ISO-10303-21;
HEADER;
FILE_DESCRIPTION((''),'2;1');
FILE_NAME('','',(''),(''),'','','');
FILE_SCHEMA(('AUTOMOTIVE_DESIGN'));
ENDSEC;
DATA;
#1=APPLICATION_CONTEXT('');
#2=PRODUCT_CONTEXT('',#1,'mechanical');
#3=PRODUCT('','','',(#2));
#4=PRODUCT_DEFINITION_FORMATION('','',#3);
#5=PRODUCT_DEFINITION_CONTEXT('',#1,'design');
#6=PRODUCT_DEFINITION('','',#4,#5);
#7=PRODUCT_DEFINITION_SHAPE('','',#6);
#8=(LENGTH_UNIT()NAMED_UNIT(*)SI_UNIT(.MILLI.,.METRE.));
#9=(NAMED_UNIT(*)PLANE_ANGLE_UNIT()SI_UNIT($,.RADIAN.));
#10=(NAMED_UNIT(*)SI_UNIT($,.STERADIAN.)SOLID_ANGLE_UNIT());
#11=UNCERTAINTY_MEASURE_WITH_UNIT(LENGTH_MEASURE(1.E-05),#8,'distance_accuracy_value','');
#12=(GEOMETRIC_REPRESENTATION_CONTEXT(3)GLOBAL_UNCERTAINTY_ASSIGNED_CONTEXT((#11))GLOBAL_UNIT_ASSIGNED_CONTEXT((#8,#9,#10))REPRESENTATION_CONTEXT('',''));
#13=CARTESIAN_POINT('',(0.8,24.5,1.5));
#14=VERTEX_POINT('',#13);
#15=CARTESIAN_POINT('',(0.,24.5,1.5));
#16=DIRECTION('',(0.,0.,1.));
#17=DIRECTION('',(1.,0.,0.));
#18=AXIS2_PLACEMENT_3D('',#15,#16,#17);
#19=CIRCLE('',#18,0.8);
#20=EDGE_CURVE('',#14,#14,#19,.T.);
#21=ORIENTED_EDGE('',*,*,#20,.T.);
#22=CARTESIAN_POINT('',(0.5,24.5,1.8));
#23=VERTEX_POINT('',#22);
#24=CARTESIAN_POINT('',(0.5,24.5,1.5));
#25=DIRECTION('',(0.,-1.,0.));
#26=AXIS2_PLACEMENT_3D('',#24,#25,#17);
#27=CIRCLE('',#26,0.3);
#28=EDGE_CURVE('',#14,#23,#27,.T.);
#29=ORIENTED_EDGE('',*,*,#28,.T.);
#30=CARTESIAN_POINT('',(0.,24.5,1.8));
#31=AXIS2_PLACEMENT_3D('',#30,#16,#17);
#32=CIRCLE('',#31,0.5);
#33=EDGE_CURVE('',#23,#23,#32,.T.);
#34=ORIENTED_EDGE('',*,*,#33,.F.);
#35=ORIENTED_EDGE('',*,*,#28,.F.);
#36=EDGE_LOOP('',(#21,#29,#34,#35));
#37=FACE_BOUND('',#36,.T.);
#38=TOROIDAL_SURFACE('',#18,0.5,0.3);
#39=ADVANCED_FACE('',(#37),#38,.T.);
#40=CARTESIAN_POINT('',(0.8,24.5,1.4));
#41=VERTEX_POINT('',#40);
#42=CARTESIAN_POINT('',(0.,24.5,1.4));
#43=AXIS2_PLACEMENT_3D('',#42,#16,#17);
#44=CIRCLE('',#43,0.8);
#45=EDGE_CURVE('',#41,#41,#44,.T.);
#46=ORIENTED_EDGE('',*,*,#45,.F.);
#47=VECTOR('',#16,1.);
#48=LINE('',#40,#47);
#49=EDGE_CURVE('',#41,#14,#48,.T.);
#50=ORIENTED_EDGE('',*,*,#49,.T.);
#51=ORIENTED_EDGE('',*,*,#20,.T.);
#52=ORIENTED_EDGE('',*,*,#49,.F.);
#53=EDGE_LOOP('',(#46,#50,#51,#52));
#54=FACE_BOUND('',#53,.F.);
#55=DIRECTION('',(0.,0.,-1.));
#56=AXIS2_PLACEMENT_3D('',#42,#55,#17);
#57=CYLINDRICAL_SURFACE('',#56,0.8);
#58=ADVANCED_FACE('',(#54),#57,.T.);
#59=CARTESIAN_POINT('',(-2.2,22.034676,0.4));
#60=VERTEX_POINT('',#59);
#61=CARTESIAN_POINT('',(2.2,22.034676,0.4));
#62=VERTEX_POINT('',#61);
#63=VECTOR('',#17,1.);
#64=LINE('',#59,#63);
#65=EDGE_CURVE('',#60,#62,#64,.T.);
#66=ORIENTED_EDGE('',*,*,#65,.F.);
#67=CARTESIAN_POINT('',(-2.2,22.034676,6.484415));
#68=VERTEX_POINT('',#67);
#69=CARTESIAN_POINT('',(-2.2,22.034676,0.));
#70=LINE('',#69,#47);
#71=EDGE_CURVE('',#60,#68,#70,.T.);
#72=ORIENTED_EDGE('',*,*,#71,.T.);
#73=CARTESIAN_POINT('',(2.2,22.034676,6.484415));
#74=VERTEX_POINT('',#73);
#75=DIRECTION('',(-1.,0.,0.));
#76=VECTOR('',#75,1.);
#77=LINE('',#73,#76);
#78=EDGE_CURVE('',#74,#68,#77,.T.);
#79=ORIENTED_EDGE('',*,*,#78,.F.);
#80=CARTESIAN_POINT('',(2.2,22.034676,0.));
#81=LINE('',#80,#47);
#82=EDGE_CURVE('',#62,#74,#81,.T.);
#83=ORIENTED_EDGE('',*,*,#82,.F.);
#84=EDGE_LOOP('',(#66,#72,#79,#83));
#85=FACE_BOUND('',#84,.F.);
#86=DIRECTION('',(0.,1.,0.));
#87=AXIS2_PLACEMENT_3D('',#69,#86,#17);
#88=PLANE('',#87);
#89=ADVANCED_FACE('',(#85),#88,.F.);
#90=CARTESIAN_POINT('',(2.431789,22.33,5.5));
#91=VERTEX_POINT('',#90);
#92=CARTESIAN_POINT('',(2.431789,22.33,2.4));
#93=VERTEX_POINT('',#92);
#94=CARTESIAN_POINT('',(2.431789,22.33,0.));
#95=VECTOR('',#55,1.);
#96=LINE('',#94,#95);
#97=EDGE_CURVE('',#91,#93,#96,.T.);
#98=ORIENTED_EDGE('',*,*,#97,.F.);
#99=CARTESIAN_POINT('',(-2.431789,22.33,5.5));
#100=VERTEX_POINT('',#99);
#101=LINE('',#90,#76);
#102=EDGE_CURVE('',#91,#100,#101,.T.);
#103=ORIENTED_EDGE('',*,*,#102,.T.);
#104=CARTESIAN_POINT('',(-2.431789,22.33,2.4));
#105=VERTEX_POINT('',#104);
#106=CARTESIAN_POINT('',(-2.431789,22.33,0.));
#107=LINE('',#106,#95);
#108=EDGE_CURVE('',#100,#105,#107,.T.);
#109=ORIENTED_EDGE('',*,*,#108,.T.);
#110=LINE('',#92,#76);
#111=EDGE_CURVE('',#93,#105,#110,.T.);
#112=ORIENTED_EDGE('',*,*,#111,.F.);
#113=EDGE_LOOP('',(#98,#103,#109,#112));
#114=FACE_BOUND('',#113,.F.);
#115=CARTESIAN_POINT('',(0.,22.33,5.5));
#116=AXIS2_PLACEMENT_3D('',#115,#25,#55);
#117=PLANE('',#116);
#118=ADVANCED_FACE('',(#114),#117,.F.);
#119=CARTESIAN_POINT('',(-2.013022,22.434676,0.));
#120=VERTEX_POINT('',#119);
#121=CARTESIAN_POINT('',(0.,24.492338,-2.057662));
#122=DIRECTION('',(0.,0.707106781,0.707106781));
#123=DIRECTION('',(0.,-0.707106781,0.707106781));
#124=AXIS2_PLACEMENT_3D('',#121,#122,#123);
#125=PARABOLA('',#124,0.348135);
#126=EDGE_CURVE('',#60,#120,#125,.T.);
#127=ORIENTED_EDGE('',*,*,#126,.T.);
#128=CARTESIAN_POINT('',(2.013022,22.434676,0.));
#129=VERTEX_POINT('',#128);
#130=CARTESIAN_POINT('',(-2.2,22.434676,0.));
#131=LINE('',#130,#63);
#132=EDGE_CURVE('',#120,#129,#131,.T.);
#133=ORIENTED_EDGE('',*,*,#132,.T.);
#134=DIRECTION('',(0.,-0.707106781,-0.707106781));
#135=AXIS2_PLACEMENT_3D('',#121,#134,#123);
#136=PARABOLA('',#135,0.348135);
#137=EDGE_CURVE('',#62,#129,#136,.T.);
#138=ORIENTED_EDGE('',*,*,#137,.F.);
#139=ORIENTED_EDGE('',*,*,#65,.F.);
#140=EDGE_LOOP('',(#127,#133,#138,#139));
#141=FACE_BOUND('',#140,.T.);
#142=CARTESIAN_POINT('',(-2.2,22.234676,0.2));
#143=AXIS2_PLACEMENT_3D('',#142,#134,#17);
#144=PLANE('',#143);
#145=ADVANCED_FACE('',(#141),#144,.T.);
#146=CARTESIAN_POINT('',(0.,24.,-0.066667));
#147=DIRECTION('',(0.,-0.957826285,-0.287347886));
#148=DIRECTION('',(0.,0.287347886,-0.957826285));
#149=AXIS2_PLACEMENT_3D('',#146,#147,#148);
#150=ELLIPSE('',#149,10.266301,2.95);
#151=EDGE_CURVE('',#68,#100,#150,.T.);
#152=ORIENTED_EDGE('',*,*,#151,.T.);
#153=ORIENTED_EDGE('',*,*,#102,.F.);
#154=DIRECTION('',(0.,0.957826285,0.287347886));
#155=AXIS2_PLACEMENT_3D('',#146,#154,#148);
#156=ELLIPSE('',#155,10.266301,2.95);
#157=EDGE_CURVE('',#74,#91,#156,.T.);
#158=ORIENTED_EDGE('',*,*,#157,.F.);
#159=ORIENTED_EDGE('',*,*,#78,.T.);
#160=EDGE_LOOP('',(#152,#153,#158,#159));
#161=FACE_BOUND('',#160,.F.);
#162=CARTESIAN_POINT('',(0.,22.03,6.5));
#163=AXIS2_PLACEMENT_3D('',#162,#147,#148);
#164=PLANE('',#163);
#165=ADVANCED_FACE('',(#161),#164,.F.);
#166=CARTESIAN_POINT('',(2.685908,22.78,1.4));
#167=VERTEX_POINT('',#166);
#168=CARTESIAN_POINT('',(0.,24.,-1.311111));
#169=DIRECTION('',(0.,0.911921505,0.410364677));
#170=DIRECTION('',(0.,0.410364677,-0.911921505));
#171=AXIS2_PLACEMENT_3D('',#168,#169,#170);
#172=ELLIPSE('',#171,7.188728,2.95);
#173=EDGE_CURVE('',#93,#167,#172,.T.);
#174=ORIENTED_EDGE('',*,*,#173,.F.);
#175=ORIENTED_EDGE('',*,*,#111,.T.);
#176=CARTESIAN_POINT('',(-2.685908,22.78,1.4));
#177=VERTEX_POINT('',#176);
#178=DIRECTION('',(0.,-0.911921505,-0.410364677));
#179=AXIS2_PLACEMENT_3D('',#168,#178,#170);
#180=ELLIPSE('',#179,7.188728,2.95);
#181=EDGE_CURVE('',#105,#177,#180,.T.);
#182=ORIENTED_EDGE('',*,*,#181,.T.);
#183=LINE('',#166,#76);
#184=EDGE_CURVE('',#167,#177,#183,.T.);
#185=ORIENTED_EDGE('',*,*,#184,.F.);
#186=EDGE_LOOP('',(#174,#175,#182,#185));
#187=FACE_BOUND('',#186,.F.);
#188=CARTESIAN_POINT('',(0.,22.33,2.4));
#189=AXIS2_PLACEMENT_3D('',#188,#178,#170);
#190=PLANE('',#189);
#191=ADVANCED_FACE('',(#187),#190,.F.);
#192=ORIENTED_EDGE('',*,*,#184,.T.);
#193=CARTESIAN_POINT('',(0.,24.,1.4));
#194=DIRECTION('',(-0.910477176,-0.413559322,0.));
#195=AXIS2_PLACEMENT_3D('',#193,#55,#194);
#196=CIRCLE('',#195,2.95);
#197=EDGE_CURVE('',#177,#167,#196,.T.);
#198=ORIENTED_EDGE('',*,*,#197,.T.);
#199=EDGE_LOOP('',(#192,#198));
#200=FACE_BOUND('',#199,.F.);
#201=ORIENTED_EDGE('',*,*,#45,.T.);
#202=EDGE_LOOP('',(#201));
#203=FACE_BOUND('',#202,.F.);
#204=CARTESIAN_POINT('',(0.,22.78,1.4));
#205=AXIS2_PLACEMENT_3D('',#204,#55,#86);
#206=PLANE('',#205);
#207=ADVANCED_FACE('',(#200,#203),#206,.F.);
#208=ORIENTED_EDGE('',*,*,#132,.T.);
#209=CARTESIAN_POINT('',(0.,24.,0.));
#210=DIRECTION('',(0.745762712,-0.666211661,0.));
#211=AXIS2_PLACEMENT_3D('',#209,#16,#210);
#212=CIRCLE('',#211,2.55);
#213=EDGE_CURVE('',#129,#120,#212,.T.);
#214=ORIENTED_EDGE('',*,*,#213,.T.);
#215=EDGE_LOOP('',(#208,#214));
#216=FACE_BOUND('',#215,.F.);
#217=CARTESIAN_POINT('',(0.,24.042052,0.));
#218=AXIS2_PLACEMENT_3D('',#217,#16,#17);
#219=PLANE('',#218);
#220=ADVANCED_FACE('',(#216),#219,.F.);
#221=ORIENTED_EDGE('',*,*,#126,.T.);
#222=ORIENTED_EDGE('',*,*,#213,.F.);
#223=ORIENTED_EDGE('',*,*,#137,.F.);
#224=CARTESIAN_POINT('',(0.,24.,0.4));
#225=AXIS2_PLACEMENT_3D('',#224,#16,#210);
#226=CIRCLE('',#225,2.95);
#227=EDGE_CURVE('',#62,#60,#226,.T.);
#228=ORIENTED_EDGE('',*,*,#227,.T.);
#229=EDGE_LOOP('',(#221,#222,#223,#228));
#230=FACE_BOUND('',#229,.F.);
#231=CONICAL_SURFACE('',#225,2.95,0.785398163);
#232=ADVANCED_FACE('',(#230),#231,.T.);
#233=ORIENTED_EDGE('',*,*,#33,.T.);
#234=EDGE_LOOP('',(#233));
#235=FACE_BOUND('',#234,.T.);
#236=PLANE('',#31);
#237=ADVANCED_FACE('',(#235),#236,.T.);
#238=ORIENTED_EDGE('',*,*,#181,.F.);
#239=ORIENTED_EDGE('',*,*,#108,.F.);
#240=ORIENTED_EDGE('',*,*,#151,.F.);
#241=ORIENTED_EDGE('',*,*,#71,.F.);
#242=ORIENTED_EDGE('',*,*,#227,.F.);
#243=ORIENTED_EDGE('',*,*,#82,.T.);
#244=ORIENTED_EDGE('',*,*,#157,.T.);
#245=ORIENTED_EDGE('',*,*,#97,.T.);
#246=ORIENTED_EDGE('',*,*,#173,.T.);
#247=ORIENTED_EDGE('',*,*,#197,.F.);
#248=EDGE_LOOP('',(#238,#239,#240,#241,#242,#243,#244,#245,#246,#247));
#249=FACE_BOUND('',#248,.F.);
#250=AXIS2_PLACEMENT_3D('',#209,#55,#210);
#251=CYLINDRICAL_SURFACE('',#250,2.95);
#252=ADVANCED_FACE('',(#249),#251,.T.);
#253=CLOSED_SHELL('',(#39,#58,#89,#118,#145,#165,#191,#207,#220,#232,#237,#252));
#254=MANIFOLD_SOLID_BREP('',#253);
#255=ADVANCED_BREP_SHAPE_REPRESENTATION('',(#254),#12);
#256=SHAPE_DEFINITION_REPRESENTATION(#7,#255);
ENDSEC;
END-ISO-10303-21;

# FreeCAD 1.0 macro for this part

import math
import FreeCAD as App
import Part
import Sketcher


def edges_at(feature, points):
    """Names of the edges that pass closest to the given points."""
    edges = feature.Shape.Edges
    near = lambda p: min(range(len(edges)), key=lambda i: edges[i].distToShape(Part.Vertex(*p))[0])
    return sorted({f"Edge{near(p) + 1}" for p in points})

doc = App.newDocument("Part")
params = doc.addObject("Spreadsheet::Sheet", "Params")
for row, (alias, value) in enumerate([
    ("sketch1_radius", "2.95 mm"),
    ("sketch1_width", "4.4 mm"),
    ("pad1_length", "6.5 mm"),
    ("sketch2_height", "3.1 mm"),
    ("sketch2_height2", "5.1 mm"),
    ("sketch2_width", "5.22 mm"),
    ("sketch2_width2", "5.97 mm"),
    ("sketch3_diameter", "1.6 mm"),
    ("pad2_length", "0.4 mm"),
    ("fillet_radius", "0.3 mm"),
    ("chamfer_size", "0.4 mm"),
], start=1):
    params.set(f"A{row}", alias)
    params.set(f"B{row}", "=" + value)
    params.setAlias(f"B{row}", alias)

body = doc.addObject("PartDesign::Body", "Body")

# Sketch on XY plane
sketch1 = body.newObject("Sketcher::SketchObject", "Sketch")
sketch1.AttachmentSupport = (doc.getObject("XY_Plane"), [""])
sketch1.MapMode = "FlatFace"
sketch1.addGeometry([
    Part.ArcOfCircle(Part.Circle(App.Vector(0, 0, 0), App.Vector(0, 0, 1), 3), math.radians(-42), math.radians(222)),
    Part.LineSegment(App.Vector(-2.2, -2, 0), App.Vector(2.2, -2, 0)),
], False)
sketch1.addConstraint([
    Sketcher.Constraint("Coincident", 0, 1, 1, 2),
    Sketcher.Constraint("Coincident", 1, 1, 0, 2),
    Sketcher.Constraint("Horizontal", 1),
    Sketcher.Constraint("Coincident", 0, 3, -1, 1),
    Sketcher.Constraint("Radius", 0, 2.95),
    Sketcher.Constraint("DistanceX", 1, 1, 1, 2, 4.4),
])
sketch1.setExpression("Constraints[4]", "Params.sketch1_radius")
sketch1.setExpression("Constraints[5]", "Params.sketch1_width")
pad1 = body.newObject("PartDesign::Pad", "Pad")
pad1.Profile = sketch1
pad1.setExpression("Length", "Params.pad1_length")

# Sketch on YZ plane
sketch2 = body.newObject("Sketcher::SketchObject", "Sketch001")
sketch2.AttachmentSupport = (doc.getObject("YZ_Plane"), [""])
sketch2.MapMode = "FlatFace"
sketch2.addGeometry([
    Part.LineSegment(App.Vector(-2, 6.5, 0), App.Vector(-1.7, 5.5, 0)),  # 0
    Part.LineSegment(App.Vector(-1.7, 5.5, 0), App.Vector(-1.7, 2.4, 0)),  # 1
    Part.LineSegment(App.Vector(-1.7, 2.4, 0), App.Vector(-1.2, 1.4, 0)),  # 2
    Part.LineSegment(App.Vector(-1.2, 1.4, 0), App.Vector(4, 1.4, 0)),  # 3
    Part.LineSegment(App.Vector(4, 1.4, 0), App.Vector(4, 6.5, 0)),  # 4
    Part.LineSegment(App.Vector(4, 6.5, 0), App.Vector(-2, 6.5, 0)),  # 5
], False)
sketch2.addConstraint([
    Sketcher.Constraint("Coincident", 0, 2, 1, 1),
    Sketcher.Constraint("Coincident", 1, 2, 2, 1),
    Sketcher.Constraint("Coincident", 2, 2, 3, 1),
    Sketcher.Constraint("Coincident", 3, 2, 4, 1),
    Sketcher.Constraint("Coincident", 4, 2, 5, 1),
    Sketcher.Constraint("Coincident", 5, 2, 0, 1),
    Sketcher.Constraint("Vertical", 1),
    Sketcher.Constraint("Horizontal", 3),
    Sketcher.Constraint("Vertical", 4),
    Sketcher.Constraint("Horizontal", 5),
    Sketcher.Constraint("DistanceY", 1, 2, 1, 1, 3.1),
    Sketcher.Constraint("DistanceY", 4, 1, 4, 2, 5.1),
    Sketcher.Constraint("DistanceX", -1, 1, 3, 2, 4.0),
    Sketcher.Constraint("DistanceY", 2, 2, 1, 2, 1.0),
    Sketcher.Constraint("DistanceX", 3, 1, 3, 2, 5.22),
    Sketcher.Constraint("DistanceX", 5, 2, 5, 1, 5.97),
    Sketcher.Constraint("DistanceY", -1, 1, 0, 2, 5.5),
    Sketcher.Constraint("DistanceX", 5, 2, 0, 2, 0.3),
])
sketch2.setExpression("Constraints[10]", "Params.sketch2_height")
sketch2.setExpression("Constraints[11]", "Params.sketch2_height2")
sketch2.setExpression("Constraints[14]", "Params.sketch2_width")
sketch2.setExpression("Constraints[15]", "Params.sketch2_width2")
pocket1 = body.newObject("PartDesign::Pocket", "Pocket")
pocket1.Profile = sketch2
pocket1.Type = "ThroughAll"
pocket1.Midplane = True

# Sketch on XY plane
sketch3 = body.newObject("Sketcher::SketchObject", "Sketch002")
sketch3.AttachmentSupport = (doc.getObject("XY_Plane"), [""])
sketch3.MapMode = "FlatFace"
sketch3.AttachmentOffset = App.Placement(App.Vector(0, 0, 1.4), App.Rotation())
sketch3.addGeometry(Part.Circle(App.Vector(0, 0.5, 0), App.Vector(0, 0, 1), 0.8), False)
sketch3.addConstraint([
    Sketcher.Constraint("PointOnObject", 0, 3, -2),
    Sketcher.Constraint("Diameter", 0, 1.6),
    Sketcher.Constraint("DistanceY", -1, 1, 0, 3, 0.5),
])
sketch3.setExpression("Constraints[1]", "Params.sketch3_diameter")
pad2 = body.newObject("PartDesign::Pad", "Pad001")
pad2.Profile = sketch3
pad2.setExpression("Length", "Params.pad2_length")
doc.recompute()

fillet = body.newObject("PartDesign::Fillet", "Fillet")
fillet.Base = (pad2, edges_at(pad2, [(-0.8, 0.5, 1.8)]))
fillet.setExpression("Radius", "Params.fillet_radius")
doc.recompute()

chamfer = body.newObject("PartDesign::Chamfer", "Chamfer")
chamfer.Base = (fillet, edges_at(fillet, [(0, 2.95, 0), (0, -1.965, 0)]))
chamfer.setExpression("Size", "Params.chamfer_size")
body2 = doc.addObject("PartDesign::Body", "Body001")
doc.recompute()

body.Placement = App.Placement(App.Vector(0, 24, 0), App.Rotation(App.Vector(0, 0, 1), 0))
boolean = body2.newObject("PartDesign::Boolean", "Boolean")
boolean.Type = "Fuse"
boolean.addObjects([body])

doc.recompute()
